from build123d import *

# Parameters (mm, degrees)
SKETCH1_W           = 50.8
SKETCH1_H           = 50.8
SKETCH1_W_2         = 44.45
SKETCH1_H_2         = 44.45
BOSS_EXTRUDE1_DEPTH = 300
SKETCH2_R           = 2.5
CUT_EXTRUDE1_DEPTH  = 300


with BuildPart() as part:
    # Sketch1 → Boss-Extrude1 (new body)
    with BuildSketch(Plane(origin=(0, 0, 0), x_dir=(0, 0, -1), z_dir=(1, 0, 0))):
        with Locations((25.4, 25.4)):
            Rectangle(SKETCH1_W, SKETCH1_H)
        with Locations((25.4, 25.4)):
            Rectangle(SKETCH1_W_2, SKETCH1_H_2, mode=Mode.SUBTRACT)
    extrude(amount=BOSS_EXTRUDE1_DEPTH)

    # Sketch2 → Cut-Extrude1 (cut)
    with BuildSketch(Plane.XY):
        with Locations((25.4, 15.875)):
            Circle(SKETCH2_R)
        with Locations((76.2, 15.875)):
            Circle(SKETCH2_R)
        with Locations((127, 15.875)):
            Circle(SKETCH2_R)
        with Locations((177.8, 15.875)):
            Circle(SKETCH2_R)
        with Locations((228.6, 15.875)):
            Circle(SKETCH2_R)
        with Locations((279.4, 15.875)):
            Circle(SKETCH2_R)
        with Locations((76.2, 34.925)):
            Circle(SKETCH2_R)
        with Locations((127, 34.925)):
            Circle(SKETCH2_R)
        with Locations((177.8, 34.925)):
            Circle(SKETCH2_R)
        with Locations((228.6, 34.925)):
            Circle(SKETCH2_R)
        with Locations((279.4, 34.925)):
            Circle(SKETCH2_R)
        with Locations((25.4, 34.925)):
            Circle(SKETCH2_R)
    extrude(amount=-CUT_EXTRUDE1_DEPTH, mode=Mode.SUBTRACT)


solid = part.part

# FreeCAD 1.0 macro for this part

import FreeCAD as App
import Part
import Sketcher
from FreeCAD import Vector
Q = App.Units.Quantity


def add_polygon(sketch, points):
    """Adds a closed chain of lines whose ends are joined by coincident constraints."""
    first, n = sketch.GeometryCount, len(points)
    for a, b in zip(points, points[1:] + points[:1]):
        sketch.addGeometry(Part.LineSegment(App.Vector(*a, 0), App.Vector(*b, 0)), False)
    for i in range(n):
        sketch.addConstraint(Sketcher.Constraint("Coincident", first + i, 2, first + (i + 1) % n, 1))

doc = App.newDocument("Part")
body = doc.addObject("PartDesign::Body", "Body")

# Sketch on YZ plane
sketch1 = body.newObject("Sketcher::SketchObject", "Sketch")
sketch1.AttachmentSupport = (doc.getObject("YZ_Plane"), [""])
sketch1.MapMode = "FlatFace"
add_polygon(sketch1, [(51, 0), (0, 0), (0, -51), (51, -51)])  # lines 0-3
add_polygon(sketch1, [(3, -48), (3, -3), (48, -3), (48, -48)])  # lines 4-7
sketch1.addConstraint([
    Sketcher.Constraint("Horizontal", 0),
    Sketcher.Constraint("Vertical", 1),
    Sketcher.Constraint("Horizontal", 2),
    Sketcher.Constraint("Vertical", 3),
    Sketcher.Constraint("Vertical", 4),
    Sketcher.Constraint("Horizontal", 5),
    Sketcher.Constraint("Vertical", 6),
    Sketcher.Constraint("Horizontal", 7),
    Sketcher.Constraint("Coincident", 0, 2, -1, 1),
    Sketcher.Constraint("Equal", 2, 1),
    Sketcher.Constraint("Equal", 7, 4),
    Sketcher.Constraint("DistanceX", 0, 2, 0, 1, Q("50.8 mm")),
    Sketcher.Constraint("DistanceX", 5, 1, 5, 2, Q("44.45 mm")),
    Sketcher.Constraint("DistanceX", -1, 1, 4, 2, Q("3.175 mm")),
    Sketcher.Constraint("DistanceY", 4, 2, -1, 1, Q("3.175 mm")),
])
pad1 = body.newObject("PartDesign::Pad", "Pad")
pad1.Profile = sketch1
pad1.Length = 300

# Sketch on XY plane
sketch2 = body.newObject("Sketcher::SketchObject", "Sketch001")
sketch2.AttachmentSupport = (doc.getObject("XY_Plane"), [""])
sketch2.MapMode = "FlatFace"
sketch2.addGeometry([
    Part.Circle(Vector(25.4, 15.9, 0), Vector(0, 0, 1), 2.5),  # 0
    Part.Circle(Vector(76.2, 15.9, 0), Vector(0, 0, 1), 2.5),  # 1
    Part.Circle(Vector(127, 15.9, 0), Vector(0, 0, 1), 2.5),  # 2
    Part.Circle(Vector(177.8, 15.9, 0), Vector(0, 0, 1), 2.5),  # 3
    Part.Circle(Vector(228.6, 15.9, 0), Vector(0, 0, 1), 2.5),  # 4
    Part.Circle(Vector(279.4, 15.9, 0), Vector(0, 0, 1), 2.5),  # 5
    Part.Circle(Vector(76.2, 34.9, 0), Vector(0, 0, 1), 2.5),  # 6
    Part.Circle(Vector(127, 34.9, 0), Vector(0, 0, 1), 2.5),  # 7
    Part.Circle(Vector(177.8, 34.9, 0), Vector(0, 0, 1), 2.5),  # 8
    Part.Circle(Vector(228.6, 34.9, 0), Vector(0, 0, 1), 2.5),  # 9
    Part.Circle(Vector(279.4, 34.9, 0), Vector(0, 0, 1), 2.5),  # 10
    Part.Circle(Vector(25.4, 34.9, 0), Vector(0, 0, 1), 2.5),  # 11
], False)
sketch2.addConstraint([
    Sketcher.Constraint("Equal", 0, 1),
    Sketcher.Constraint("Equal", 1, 2),
    Sketcher.Constraint("Equal", 2, 3),
    Sketcher.Constraint("Equal", 3, 4),
    Sketcher.Constraint("Equal", 4, 5),
    Sketcher.Constraint("Equal", 5, 6),
    Sketcher.Constraint("Equal", 6, 7),
    Sketcher.Constraint("Equal", 7, 8),
    Sketcher.Constraint("Equal", 8, 9),
    Sketcher.Constraint("Equal", 9, 10),
    Sketcher.Constraint("Equal", 10, 11),
    Sketcher.Constraint("Horizontal", 0, 3, 1, 3),
    Sketcher.Constraint("Horizontal", 1, 3, 2, 3),
    Sketcher.Constraint("Horizontal", 2, 3, 3, 3),
    Sketcher.Constraint("Horizontal", 3, 3, 4, 3),
    Sketcher.Constraint("Horizontal", 4, 3, 5, 3),
    Sketcher.Constraint("Horizontal", 6, 3, 7, 3),
    Sketcher.Constraint("Horizontal", 7, 3, 8, 3),
    Sketcher.Constraint("Horizontal", 8, 3, 9, 3),
    Sketcher.Constraint("Horizontal", 9, 3, 10, 3),
    Sketcher.Constraint("Horizontal", 10, 3, 11, 3),
    Sketcher.Constraint("Vertical", 1, 3, 6, 3),
    Sketcher.Constraint("Vertical", 2, 3, 7, 3),
    Sketcher.Constraint("Vertical", 3, 3, 8, 3),
    Sketcher.Constraint("Vertical", 4, 3, 9, 3),
    Sketcher.Constraint("Vertical", 5, 3, 10, 3),
    Sketcher.Constraint("Vertical", 0, 3, 11, 3),
    Sketcher.Constraint("Diameter", 0, Q("5 mm")),
    Sketcher.Constraint("DistanceX", -1, 1, 2, 3, Q("127 mm")),
    Sketcher.Constraint("DistanceX", 0, 3, 5, 3, Q("254 mm")),
    Sketcher.Constraint("DistanceX", -1, 1, 0, 3, Q("25.4 mm")),
    Sketcher.Constraint("DistanceX", -1, 1, 1, 3, Q("76.2 mm")),
    Sketcher.Constraint("DistanceX", -1, 1, 3, 3, Q("177.8 mm")),
    Sketcher.Constraint("DistanceX", -1, 1, 4, 3, Q("228.6 mm")),
    Sketcher.Constraint("DistanceY", 1, 3, 6, 3, Q("19.05 mm")),
    Sketcher.Constraint("DistanceY", -1, 1, 0, 3, Q("15.875 mm")),
])
pocket1 = body.newObject("PartDesign::Pocket", "Pocket")
pocket1.Profile = sketch2
pocket1.Length = 300

doc.recompute()
